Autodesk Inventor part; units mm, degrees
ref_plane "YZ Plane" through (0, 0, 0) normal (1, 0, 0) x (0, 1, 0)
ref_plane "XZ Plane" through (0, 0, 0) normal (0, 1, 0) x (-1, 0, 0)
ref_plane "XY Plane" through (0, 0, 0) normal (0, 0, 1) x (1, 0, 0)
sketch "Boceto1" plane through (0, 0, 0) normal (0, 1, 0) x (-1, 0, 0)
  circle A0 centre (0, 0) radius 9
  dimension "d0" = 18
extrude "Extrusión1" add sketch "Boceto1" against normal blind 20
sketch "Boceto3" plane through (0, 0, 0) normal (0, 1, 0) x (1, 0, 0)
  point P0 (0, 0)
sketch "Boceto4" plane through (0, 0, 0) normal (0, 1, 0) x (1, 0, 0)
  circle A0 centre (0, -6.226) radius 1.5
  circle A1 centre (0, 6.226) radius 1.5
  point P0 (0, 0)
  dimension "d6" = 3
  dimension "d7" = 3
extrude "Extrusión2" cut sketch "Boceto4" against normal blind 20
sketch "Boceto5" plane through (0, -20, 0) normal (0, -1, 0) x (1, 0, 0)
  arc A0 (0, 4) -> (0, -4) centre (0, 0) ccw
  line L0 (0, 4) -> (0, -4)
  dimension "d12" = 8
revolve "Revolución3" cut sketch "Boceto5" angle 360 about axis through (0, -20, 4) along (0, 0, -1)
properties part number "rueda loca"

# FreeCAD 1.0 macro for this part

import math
import FreeCAD as App
import Part
import Sketcher

V = App.Vector

doc = App.newDocument("Part")
params = doc.addObject("Spreadsheet::Sheet", "Params")
for row, (alias, value) in enumerate([
    ("sketch1_diameter", "18 mm"),
    ("pad1_length", "20 mm"),
    ("sketch2_diameter", "3 mm"),
    ("pocket1_length", "20 mm"),
    ("sketch3_radius", "4 mm"),
    ("groove_angle", "360 deg"),
], start=1):
    params.set(f"A{row}", alias)
    params.set(f"B{row}", "=" + value)
    params.setAlias(f"B{row}", alias)

body = doc.addObject("PartDesign::Body", "Body")

sketch1 = doc.addObject("Sketcher::SketchObject", "Sketch")
body.addObject(sketch1)
sketch1.AttachmentSupport = (doc.XZ_Plane, [""])
sketch1.MapMode = "FlatFace"
sketch1.addGeometry(Part.Circle(V(0, 0, 0), V(0, 0, 1), 9), False)
sketch1.addConstraint([
    Sketcher.Constraint("Coincident", 0, 3, -1, 1),
    Sketcher.Constraint("Diameter", 0, 18.0),
])
sketch1.setExpression("Constraints[1]", "Params.sketch1_diameter")
pad1 = doc.addObject("PartDesign::Pad", "Pad")
body.addObject(pad1)
pad1.Profile = sketch1
pad1.setExpression("Length", "Params.pad1_length")

sketch2 = doc.addObject("Sketcher::SketchObject", "Sketch001")
body.addObject(sketch2)
sketch2.AttachmentSupport = (doc.XZ_Plane, [""])
sketch2.MapMode = "FlatFace"
sketch2.addGeometry([
    Part.Circle(V(0, 6.226, 0), V(0, 0, 1), 1.5),
    Part.Circle(V(0, -6.226, 0), V(0, 0, 1), 1.5),
], False)
sketch2.addConstraint([
    Sketcher.Constraint("Equal", 0, 1),
    Sketcher.Constraint("Symmetric", 0, 3, 1, 3, -1, 1),
    Sketcher.Constraint("PointOnObject", 0, 3, -2),
    Sketcher.Constraint("Diameter", 0, 3.0),
    Sketcher.Constraint("DistanceY", -1, 1, 0, 3, 6.226),
])
sketch2.setExpression("Constraints[3]", "Params.sketch2_diameter")
pocket1 = doc.addObject("PartDesign::Pocket", "Pocket")
body.addObject(pocket1)
pocket1.Profile = sketch2
pocket1.setExpression("Length", "Params.pocket1_length")
pocket1.Reversed = True

sketch3 = doc.addObject("Sketcher::SketchObject", "Sketch002")
body.addObject(sketch3)
sketch3.AttachmentSupport = (doc.XZ_Plane, [""])
sketch3.MapMode = "FlatFace"
sketch3.AttachmentOffset = App.Placement(V(0, 0, 20), App.Rotation())
sketch3.addGeometry([
    Part.LineSegment(V(0, -4, 0), V(0, 4, 0)),
    Part.ArcOfCircle(Part.Circle(V(0, 0, 0), V(0, 0, 1), 4), math.radians(90), math.radians(270)),
], False)
sketch3.addConstraint([
    Sketcher.Constraint("Coincident", 0, 1, 1, 2),
    Sketcher.Constraint("Coincident", 1, 1, 0, 2),
    Sketcher.Constraint("Vertical", 0),
    Sketcher.Constraint("Coincident", 1, 3, -1, 1),
    Sketcher.Constraint("PointOnObject", 0, 1, -2),
    Sketcher.Constraint("Radius", 1, 4.0),
])
sketch3.setExpression("Constraints[5]", "Params.sketch3_radius")
groove = doc.addObject("PartDesign::Groove", "Groove")
body.addObject(groove)
groove.Profile = sketch3
groove.ReferenceAxis = (sketch3, ["V_Axis"])
groove.setExpression("Angle", "Params.groove_angle")

doc.recompute()
